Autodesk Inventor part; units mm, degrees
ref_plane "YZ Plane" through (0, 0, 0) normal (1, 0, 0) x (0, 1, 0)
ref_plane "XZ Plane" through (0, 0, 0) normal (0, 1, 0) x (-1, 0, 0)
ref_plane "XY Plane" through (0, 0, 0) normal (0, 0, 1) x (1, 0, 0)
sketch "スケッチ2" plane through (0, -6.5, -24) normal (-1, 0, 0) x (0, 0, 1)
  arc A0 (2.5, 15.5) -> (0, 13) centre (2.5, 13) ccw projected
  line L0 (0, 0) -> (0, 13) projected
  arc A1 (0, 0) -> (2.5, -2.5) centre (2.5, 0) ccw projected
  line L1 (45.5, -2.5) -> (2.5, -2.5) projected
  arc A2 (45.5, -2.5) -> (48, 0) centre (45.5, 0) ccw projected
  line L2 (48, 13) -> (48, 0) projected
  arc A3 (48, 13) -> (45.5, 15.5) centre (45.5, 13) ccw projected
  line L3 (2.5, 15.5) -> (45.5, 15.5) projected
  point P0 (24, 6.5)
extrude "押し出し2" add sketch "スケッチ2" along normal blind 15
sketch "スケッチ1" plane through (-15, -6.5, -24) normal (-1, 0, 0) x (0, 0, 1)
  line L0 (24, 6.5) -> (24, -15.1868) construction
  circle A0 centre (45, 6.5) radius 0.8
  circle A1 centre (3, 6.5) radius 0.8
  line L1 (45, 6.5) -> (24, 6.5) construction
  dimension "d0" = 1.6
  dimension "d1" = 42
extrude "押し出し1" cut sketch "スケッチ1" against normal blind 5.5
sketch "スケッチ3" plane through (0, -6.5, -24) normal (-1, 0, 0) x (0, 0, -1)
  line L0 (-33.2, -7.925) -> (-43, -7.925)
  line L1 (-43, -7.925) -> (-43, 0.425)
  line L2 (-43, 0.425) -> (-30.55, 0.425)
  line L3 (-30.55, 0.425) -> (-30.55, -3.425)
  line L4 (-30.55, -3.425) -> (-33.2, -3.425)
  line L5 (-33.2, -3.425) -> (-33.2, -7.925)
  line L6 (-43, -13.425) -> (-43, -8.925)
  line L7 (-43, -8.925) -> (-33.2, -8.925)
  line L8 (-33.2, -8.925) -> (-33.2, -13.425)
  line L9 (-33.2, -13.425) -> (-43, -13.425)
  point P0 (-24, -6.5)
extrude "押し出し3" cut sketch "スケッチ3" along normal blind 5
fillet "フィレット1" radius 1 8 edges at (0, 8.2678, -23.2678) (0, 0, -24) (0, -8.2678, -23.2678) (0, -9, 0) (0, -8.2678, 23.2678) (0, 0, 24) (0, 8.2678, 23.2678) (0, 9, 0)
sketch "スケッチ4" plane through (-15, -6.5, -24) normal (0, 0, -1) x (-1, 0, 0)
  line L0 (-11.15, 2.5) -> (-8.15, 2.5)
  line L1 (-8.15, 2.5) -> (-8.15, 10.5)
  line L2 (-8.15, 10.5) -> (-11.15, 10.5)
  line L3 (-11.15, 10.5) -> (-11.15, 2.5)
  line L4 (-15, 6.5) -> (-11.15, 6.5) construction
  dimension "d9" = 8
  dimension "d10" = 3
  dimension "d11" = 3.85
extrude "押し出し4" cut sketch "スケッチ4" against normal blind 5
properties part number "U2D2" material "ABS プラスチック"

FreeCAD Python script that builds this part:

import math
import FreeCAD as App
import Part
import Sketcher
from FreeCAD import Vector
Q = App.Units.Quantity


def edges_at(feature, points):
    """Names of the edges that pass closest to the given points."""
    edges = feature.Shape.Edges
    near = lambda p: min(range(len(edges)), key=lambda i: edges[i].distToShape(Part.Vertex(*p))[0])
    return sorted({f"Edge{near(p) + 1}" for p in points})

doc = App.newDocument("Part")
body = doc.addObject("PartDesign::Body", "Body")

sketch1 = body.newObject("Sketcher::SketchObject", "Sketch")
sketch1.AttachmentSupport = (doc.getObject("YZ_Plane"), [""])
sketch1.MapMode = "FlatFace"
sketch1.addGeometry([
    Part.LineSegment(Vector(9, 21.5, 0), Vector(9, -21.5, 0)),
    Part.ArcOfCircle(Part.Circle(Vector(6.5, -21.5, 0), Vector(0, 0, 1), 2.5), math.radians(-90), math.radians(0)),
    Part.LineSegment(Vector(6.5, -24, 0), Vector(-6.5, -24, 0)),
    Part.ArcOfCircle(Part.Circle(Vector(-6.5, -21.5, 0), Vector(0, 0, 1), 2.5), math.radians(180), math.radians(270)),
    Part.LineSegment(Vector(-9, -21.5, 0), Vector(-9, 21.5, 0)),
    Part.ArcOfCircle(Part.Circle(Vector(-6.5, 21.5, 0), Vector(0, 0, 1), 2.5), math.radians(90), math.radians(180)),
    Part.LineSegment(Vector(-6.5, 24, 0), Vector(6.5, 24, 0)),
    Part.ArcOfCircle(Part.Circle(Vector(6.5, 21.5, 0), Vector(0, 0, 1), 2.5), math.radians(0), math.radians(90)),
], False)
sketch1.addConstraint([
    Sketcher.Constraint("Tangent", 0, 2, 1, 2),
    Sketcher.Constraint("Tangent", 1, 1, 2, 1),
    Sketcher.Constraint("Tangent", 2, 2, 3, 2),
    Sketcher.Constraint("Tangent", 3, 1, 4, 1),
    Sketcher.Constraint("Tangent", 4, 2, 5, 2),
    Sketcher.Constraint("Tangent", 5, 1, 6, 1),
    Sketcher.Constraint("Tangent", 6, 2, 7, 2),
    Sketcher.Constraint("Tangent", 7, 1, 0, 1),
    Sketcher.Constraint("Vertical", 0),
    Sketcher.Constraint("Horizontal", 2),
    Sketcher.Constraint("Vertical", 4),
    Sketcher.Constraint("Horizontal", 6),
    Sketcher.Constraint("Equal", 1, 3),
    Sketcher.Constraint("Equal", 3, 5),
    Sketcher.Constraint("Equal", 5, 7),
    Sketcher.Constraint("Symmetric", 1, 3, 5, 3, -1, 1),
    Sketcher.Constraint("Radius", 1, Q("2.5 mm")),
    Sketcher.Constraint("DistanceX", 2, 2, 2, 1, Q("13 mm")),
    Sketcher.Constraint("DistanceY", 0, 2, 0, 1, Q("43 mm")),
])
pad1 = body.newObject("PartDesign::Pad", "Pad")
pad1.Profile = sketch1
pad1.Length = 15
pad1.Reversed = True

sketch2 = body.newObject("Sketcher::SketchObject", "Sketch001")
sketch2.AttachmentSupport = (doc.getObject("YZ_Plane"), [""])
sketch2.MapMode = "FlatFace"
sketch2.AttachmentOffset = App.Placement(Vector(0, 0, -15), App.Rotation())
sketch2.addGeometry([
    Part.Circle(Vector(0, 21, 0), Vector(0, 0, 1), 0.8),
    Part.Circle(Vector(0, -21, 0), Vector(0, 0, 1), 0.8),
], False)
sketch2.addConstraint([
    Sketcher.Constraint("Equal", 0, 1),
    Sketcher.Constraint("Symmetric", 0, 3, 1, 3, -1, 1),
    Sketcher.Constraint("PointOnObject", 0, 3, -2),
    Sketcher.Constraint("Diameter", 0, Q("1.6 mm")),
    Sketcher.Constraint("DistanceY", 1, 3, 0, 3, Q("42 mm")),
])
pocket1 = body.newObject("PartDesign::Pocket", "Pocket")
pocket1.Profile = sketch2
pocket1.Length = 5.5
pocket1.Reversed = True

sketch3 = body.newObject("Sketcher::SketchObject", "Sketch002")
sketch3.AttachmentSupport = (doc.getObject("YZ_Plane"), [""])
sketch3.MapMode = "FlatFace"
sketch3.addGeometry([
    Part.LineSegment(Vector(1.425, 19, 0), Vector(1.425, 9.2, 0)),
    Part.LineSegment(Vector(1.425, 9.2, 0), Vector(-3.075, 9.2, 0)),
    Part.LineSegment(Vector(-3.075, 9.2, 0), Vector(-3.075, 6.55, 0)),
    Part.LineSegment(Vector(-3.075, 6.55, 0), Vector(-6.925, 6.55, 0)),
    Part.LineSegment(Vector(-6.925, 6.55, 0), Vector(-6.925, 19, 0)),
    Part.LineSegment(Vector(-6.925, 19, 0), Vector(1.425, 19, 0)),
    Part.LineSegment(Vector(2.425, 19, 0), Vector(6.925, 19, 0)),
    Part.LineSegment(Vector(6.925, 19, 0), Vector(6.925, 9.2, 0)),
    Part.LineSegment(Vector(6.925, 9.2, 0), Vector(2.425, 9.2, 0)),
    Part.LineSegment(Vector(2.425, 9.2, 0), Vector(2.425, 19, 0)),
], False)
sketch3.addConstraint([
    Sketcher.Constraint("Coincident", 0, 2, 1, 1),
    Sketcher.Constraint("Coincident", 1, 2, 2, 1),
    Sketcher.Constraint("Coincident", 2, 2, 3, 1),
    Sketcher.Constraint("Coincident", 3, 2, 4, 1),
    Sketcher.Constraint("Coincident", 4, 2, 5, 1),
    Sketcher.Constraint("Coincident", 5, 2, 0, 1),
    Sketcher.Constraint("Coincident", 6, 2, 7, 1),
    Sketcher.Constraint("Coincident", 7, 2, 8, 1),
    Sketcher.Constraint("Coincident", 8, 2, 9, 1),
    Sketcher.Constraint("Coincident", 9, 2, 6, 1),
    Sketcher.Constraint("Vertical", 0),
    Sketcher.Constraint("Horizontal", 1),
    Sketcher.Constraint("Vertical", 2),
    Sketcher.Constraint("Horizontal", 3),
    Sketcher.Constraint("Vertical", 4),
    Sketcher.Constraint("Horizontal", 5),
    Sketcher.Constraint("Horizontal", 6),
    Sketcher.Constraint("Vertical", 7),
    Sketcher.Constraint("Horizontal", 8),
    Sketcher.Constraint("Vertical", 9),
    Sketcher.Constraint("Symmetric", 4, 2, 6, 2, -2),
    Sketcher.Constraint("Horizontal", 1, 2, 7, 2),
    Sketcher.Constraint("Equal", 1, 6),
    Sketcher.Constraint("DistanceX", 1, 2, 1, 1, Q("4.5 mm")),
    Sketcher.Constraint("DistanceY", 0, 2, 0, 1, Q("9.8 mm")),
    Sketcher.Constraint("DistanceY", -1, 1, 4, 2, Q("19 mm")),
    Sketcher.Constraint("DistanceX", 1, 2, 6, 2, Q("10 mm")),
    Sketcher.Constraint("DistanceX", 3, 2, 3, 1, Q("3.85 mm")),
    Sketcher.Constraint("DistanceY", 2, 2, 2, 1, Q("2.65 mm")),
])
pocket2 = body.newObject("PartDesign::Pocket", "Pocket001")
pocket2.Profile = sketch3
pocket2.Length = 5
doc.recompute()

fillet = body.newObject("PartDesign::Fillet", "Fillet")
fillet.Base = (pocket2, edges_at(pocket2, [
    (0, 8.268, -23.268),
    (0, 0, -24),
    (0, -8.268, -23.268),
    (0, -9, 0),
    (0, -8.268, 23.268),
    (0, 0, 24),
    (0, 8.268, 23.268),
    (0, 9, 0),
]))
fillet.Radius = 1

sketch4 = body.newObject("Sketcher::SketchObject", "Sketch003")
sketch4.AttachmentSupport = (doc.getObject("XY_Plane"), [""])
sketch4.MapMode = "FlatFace"
sketch4.AttachmentOffset = App.Placement(Vector(0, 0, -24), App.Rotation())
sketch4.addGeometry([
    Part.LineSegment(Vector(-3.85, 4, 0), Vector(-3.85, -4, 0)),
    Part.LineSegment(Vector(-3.85, -4, 0), Vector(-6.85, -4, 0)),
    Part.LineSegment(Vector(-6.85, -4, 0), Vector(-6.85, 4, 0)),
    Part.LineSegment(Vector(-6.85, 4, 0), Vector(-3.85, 4, 0)),
], False)
sketch4.addConstraint([
    Sketcher.Constraint("Coincident", 0, 2, 1, 1),
    Sketcher.Constraint("Coincident", 1, 2, 2, 1),
    Sketcher.Constraint("Coincident", 2, 2, 3, 1),
    Sketcher.Constraint("Coincident", 3, 2, 0, 1),
    Sketcher.Constraint("Vertical", 0),
    Sketcher.Constraint("Horizontal", 1),
    Sketcher.Constraint("Vertical", 2),
    Sketcher.Constraint("Horizontal", 3),
    Sketcher.Constraint("DistanceX", 1, 2, 1, 1, Q("3 mm")),
    Sketcher.Constraint("DistanceY", 0, 2, 0, 1, Q("8 mm")),
    Sketcher.Constraint("DistanceX", 0, 2, -1, 1, Q("3.85 mm")),
    Sketcher.Constraint("DistanceY", 0, 2, -1, 1, Q("4 mm")),
])
pocket3 = body.newObject("PartDesign::Pocket", "Pocket002")
pocket3.Profile = sketch4
pocket3.Length = 5
pocket3.Reversed = True

doc.recompute()
